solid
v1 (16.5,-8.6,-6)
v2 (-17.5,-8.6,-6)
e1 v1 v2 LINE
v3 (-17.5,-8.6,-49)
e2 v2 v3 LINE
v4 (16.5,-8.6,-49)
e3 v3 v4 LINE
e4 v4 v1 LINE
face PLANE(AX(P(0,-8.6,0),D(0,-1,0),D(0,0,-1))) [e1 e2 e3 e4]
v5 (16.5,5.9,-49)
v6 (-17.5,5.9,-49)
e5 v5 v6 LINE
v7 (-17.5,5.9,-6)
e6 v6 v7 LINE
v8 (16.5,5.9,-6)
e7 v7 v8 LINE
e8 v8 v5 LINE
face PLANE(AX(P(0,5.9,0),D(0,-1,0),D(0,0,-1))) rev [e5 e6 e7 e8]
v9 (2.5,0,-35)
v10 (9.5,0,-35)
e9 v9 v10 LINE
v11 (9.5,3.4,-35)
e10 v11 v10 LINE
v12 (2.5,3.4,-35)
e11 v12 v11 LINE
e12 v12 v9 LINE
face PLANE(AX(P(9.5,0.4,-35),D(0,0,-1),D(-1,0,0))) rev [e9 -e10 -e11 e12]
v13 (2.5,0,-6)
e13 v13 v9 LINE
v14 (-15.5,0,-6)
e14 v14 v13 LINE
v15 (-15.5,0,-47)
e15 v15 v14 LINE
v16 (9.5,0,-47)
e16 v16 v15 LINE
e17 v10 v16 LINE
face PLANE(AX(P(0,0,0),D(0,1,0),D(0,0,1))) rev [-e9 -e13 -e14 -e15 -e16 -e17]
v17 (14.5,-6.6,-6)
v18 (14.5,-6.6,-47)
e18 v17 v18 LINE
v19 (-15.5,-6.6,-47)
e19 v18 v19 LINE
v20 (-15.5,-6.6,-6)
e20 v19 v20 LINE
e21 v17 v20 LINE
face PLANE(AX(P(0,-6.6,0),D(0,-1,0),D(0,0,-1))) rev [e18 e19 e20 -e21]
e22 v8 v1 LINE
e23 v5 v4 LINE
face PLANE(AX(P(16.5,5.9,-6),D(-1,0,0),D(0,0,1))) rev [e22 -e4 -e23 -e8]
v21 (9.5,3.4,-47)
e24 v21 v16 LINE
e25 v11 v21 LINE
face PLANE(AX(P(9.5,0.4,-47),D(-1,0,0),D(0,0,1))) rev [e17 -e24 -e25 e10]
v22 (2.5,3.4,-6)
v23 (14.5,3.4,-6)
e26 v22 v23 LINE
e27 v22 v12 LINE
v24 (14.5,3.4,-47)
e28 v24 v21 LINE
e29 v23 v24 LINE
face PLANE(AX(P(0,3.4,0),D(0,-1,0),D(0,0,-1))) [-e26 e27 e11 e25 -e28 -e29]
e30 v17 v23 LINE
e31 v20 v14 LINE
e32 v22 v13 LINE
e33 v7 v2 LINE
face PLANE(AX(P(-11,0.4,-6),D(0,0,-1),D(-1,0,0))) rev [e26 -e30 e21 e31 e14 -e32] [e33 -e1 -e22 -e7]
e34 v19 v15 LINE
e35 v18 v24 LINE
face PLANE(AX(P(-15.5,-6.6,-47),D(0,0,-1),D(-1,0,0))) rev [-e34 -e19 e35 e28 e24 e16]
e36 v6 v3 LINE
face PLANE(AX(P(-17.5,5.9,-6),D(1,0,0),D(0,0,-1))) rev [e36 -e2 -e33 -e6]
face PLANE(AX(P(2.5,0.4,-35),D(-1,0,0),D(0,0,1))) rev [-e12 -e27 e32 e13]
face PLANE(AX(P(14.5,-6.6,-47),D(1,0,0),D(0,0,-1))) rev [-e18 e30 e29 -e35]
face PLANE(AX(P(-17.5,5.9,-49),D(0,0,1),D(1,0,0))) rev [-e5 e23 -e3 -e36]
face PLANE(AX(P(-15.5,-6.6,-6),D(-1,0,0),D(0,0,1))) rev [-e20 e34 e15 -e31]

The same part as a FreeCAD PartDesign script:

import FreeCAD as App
import Part
import Sketcher

V = App.Vector


def edges_at(feature, points):
    """Names of the edges that pass closest to the given points."""
    edges = feature.Shape.Edges
    near = lambda p: min(range(len(edges)), key=lambda i: edges[i].distToShape(Part.Vertex(*p))[0])
    return sorted({f"Edge{near(p) + 1}" for p in points})

doc = App.newDocument("Part")
body = doc.addObject("PartDesign::Body", "Body")

# Sketch on XZ plane
sketch1 = body.newObject("Sketcher::SketchObject", "Sketch")
sketch1.AttachmentSupport = (doc.getObject("XZ_Plane"), [""])
sketch1.MapMode = "FlatFace"
sketch1.addGeometry([
    Part.LineSegment(V(-11, 0, 0), V(11, 0, 0)),  # 0
    Part.LineSegment(V(11, 0, 0), V(11, -6, 0)),  # 1
    Part.LineSegment(V(11, -6, 0), V(2.5, -6, 0)),  # 2
    Part.LineSegment(V(2.5, -6, 0), V(2.5, -35, 0)),  # 3
    Part.LineSegment(V(2.5, -35, 0), V(9.5, -35, 0)),  # 4
    Part.LineSegment(V(9.5, -35, 0), V(9.5, -47, 0)),  # 5
    Part.LineSegment(V(9.5, -47, 0), V(-15.5, -47, 0)),  # 6
    Part.LineSegment(V(-15.5, -47, 0), V(-15.5, -6, 0)),  # 7
    Part.LineSegment(V(-15.5, -6, 0), V(-11, -6, 0)),  # 8
    Part.LineSegment(V(-11, -6, 0), V(-11, 0, 0)),  # 9
], False)
sketch1.addConstraint([
    Sketcher.Constraint("Coincident", 0, 2, 1, 1),
    Sketcher.Constraint("Coincident", 1, 2, 2, 1),
    Sketcher.Constraint("Coincident", 2, 2, 3, 1),
    Sketcher.Constraint("Coincident", 3, 2, 4, 1),
    Sketcher.Constraint("Coincident", 4, 2, 5, 1),
    Sketcher.Constraint("Coincident", 5, 2, 6, 1),
    Sketcher.Constraint("Coincident", 6, 2, 7, 1),
    Sketcher.Constraint("Coincident", 7, 2, 8, 1),
    Sketcher.Constraint("Coincident", 8, 2, 9, 1),
    Sketcher.Constraint("Coincident", 9, 2, 0, 1),
    Sketcher.Constraint("Horizontal", 0),
    Sketcher.Constraint("Vertical", 1),
    Sketcher.Constraint("Horizontal", 2),
    Sketcher.Constraint("Vertical", 3),
    Sketcher.Constraint("Horizontal", 4),
    Sketcher.Constraint("Vertical", 5),
    Sketcher.Constraint("Horizontal", 6),
    Sketcher.Constraint("Vertical", 7),
    Sketcher.Constraint("Horizontal", 8),
    Sketcher.Constraint("Vertical", 9),
    Sketcher.Constraint("Symmetric", 0, 2, 9, 2, -1, 1),
    Sketcher.Constraint("Horizontal", 2, 2, 7, 2),
    Sketcher.Constraint("DistanceX", 0, 1, 0, 2, 22.0),
    Sketcher.Constraint("DistanceX", 4, 1, 4, 2, 7.0),
    Sketcher.Constraint("DistanceX", 6, 2, 6, 1, 25.0),
    Sketcher.Constraint("DistanceY", 1, 2, 1, 1, 6.0),
    Sketcher.Constraint("DistanceY", 3, 2, 3, 1, 29.0),
    Sketcher.Constraint("DistanceY", 5, 2, 5, 1, 12.0),
    Sketcher.Constraint("DistanceX", 2, 2, 2, 1, 8.5),
])
pad1 = body.newObject("PartDesign::Pad", "Pad")
pad1.Profile = sketch1
pad1.Length = 0.4
pad1.Reversed = True

# Sketch on XZ plane
sketch2 = body.newObject("Sketcher::SketchObject", "Sketch001")
sketch2.AttachmentSupport = (doc.getObject("XZ_Plane"), [""])
sketch2.MapMode = "FlatFace"
sketch2.AttachmentOffset = App.Placement(V(0, 0, -0.4), App.Rotation())
sketch2.addGeometry([
    Part.LineSegment(V(-15.5, -6, 0), V(2.5, -6, 0)),  # 0
    Part.LineSegment(V(2.5, -6, 0), V(2.5, -35, 0)),  # 1
    Part.LineSegment(V(2.5, -35, 0), V(9.5, -35, 0)),  # 2
    Part.LineSegment(V(9.5, -35, 0), V(9.5, -47, 0)),  # 3
    Part.LineSegment(V(9.5, -47, 0), V(-15.5, -47, 0)),  # 4
    Part.LineSegment(V(-15.5, -47, 0), V(-15.5, -6, 0)),  # 5
], False)
sketch2.addConstraint([
    Sketcher.Constraint("Coincident", 0, 2, 1, 1),
    Sketcher.Constraint("Coincident", 1, 2, 2, 1),
    Sketcher.Constraint("Coincident", 2, 2, 3, 1),
    Sketcher.Constraint("Coincident", 3, 2, 4, 1),
    Sketcher.Constraint("Coincident", 4, 2, 5, 1),
    Sketcher.Constraint("Coincident", 5, 2, 0, 1),
    Sketcher.Constraint("Horizontal", 0),
    Sketcher.Constraint("Vertical", 1),
    Sketcher.Constraint("Horizontal", 2),
    Sketcher.Constraint("Vertical", 3),
    Sketcher.Constraint("Horizontal", 4),
    Sketcher.Constraint("Vertical", 5),
    Sketcher.Constraint("DistanceX", 0, 1, 0, 2, 18.0),
    Sketcher.Constraint("DistanceX", 2, 1, 2, 2, 7.0),
    Sketcher.Constraint("DistanceY", 1, 2, 1, 1, 29.0),
    Sketcher.Constraint("DistanceY", 3, 2, 3, 1, 12.0),
    Sketcher.Constraint("DistanceY", 0, 2, -1, 1, 6.0),
    Sketcher.Constraint("DistanceX", -1, 1, 0, 2, 2.5),
])
pad2 = body.newObject("PartDesign::Pad", "Pad001")
pad2.Profile = sketch2
pad2.Length = 3
pad2.Reversed = True
doc.recompute()

chamfer = body.newObject("PartDesign::Chamfer", "Chamfer")
chamfer.Base = (pad2, edges_at(pad2, [(11, 0.2, 0), (-11, 0.2, 0)]))
chamfer.Size = 1

# Sketch on XZ plane
sketch3 = body.newObject("Sketcher::SketchObject", "Sketch002")
sketch3.AttachmentSupport = (doc.getObject("XZ_Plane"), [""])
sketch3.MapMode = "FlatFace"
sketch3.AttachmentOffset = App.Placement(V(0, 0, -3.4), App.Rotation())
sketch3.addGeometry([
    Part.LineSegment(V(-17.5, -49, 0), V(-17.5, -6, 0)),
    Part.LineSegment(V(-17.5, -6, 0), V(16.5, -6, 0)),
    Part.LineSegment(V(16.5, -6, 0), V(16.5, -49, 0)),
    Part.LineSegment(V(16.5, -49, 0), V(-17.5, -49, 0)),
], False)
sketch3.addConstraint([
    Sketcher.Constraint("Coincident", 0, 2, 1, 1),
    Sketcher.Constraint("Coincident", 1, 2, 2, 1),
    Sketcher.Constraint("Coincident", 2, 2, 3, 1),
    Sketcher.Constraint("Coincident", 3, 2, 0, 1),
    Sketcher.Constraint("Vertical", 0),
    Sketcher.Constraint("Horizontal", 1),
    Sketcher.Constraint("Vertical", 2),
    Sketcher.Constraint("Horizontal", 3),
    Sketcher.Constraint("DistanceX", 1, 1, 1, 2, 34.0),
    Sketcher.Constraint("DistanceY", 0, 1, 0, 2, 43.0),
    Sketcher.Constraint("DistanceY", 0, 2, -1, 1, 6.0),
    Sketcher.Constraint("DistanceX", 0, 2, -1, 1, 17.5),
])
pad3 = body.newObject("PartDesign::Pad", "Pad002")
pad3.Profile = sketch3
pad3.Length = 2.5
pad3.Reversed = True

# Sketch on XZ plane
sketch4 = body.newObject("Sketcher::SketchObject", "Sketch003")
sketch4.AttachmentSupport = (doc.getObject("XZ_Plane"), [""])
sketch4.MapMode = "FlatFace"
sketch4.AttachmentOffset = App.Placement(V(0, 0, -3.4), App.Rotation())
sketch4.addGeometry([
    Part.LineSegment(V(-15.5, -6, 0), V(-17.5, -6, 0)),  # 0
    Part.LineSegment(V(-17.5, -6, 0), V(-17.5, -49, 0)),  # 1
    Part.LineSegment(V(-17.5, -49, 0), V(16.5, -49, 0)),  # 2
    Part.LineSegment(V(16.5, -49, 0), V(16.5, -6, 0)),  # 3
    Part.LineSegment(V(16.5, -6, 0), V(14.5, -6, 0)),  # 4
    Part.LineSegment(V(14.5, -6, 0), V(14.5, -47, 0)),  # 5
    Part.LineSegment(V(14.5, -47, 0), V(-15.5, -47, 0)),  # 6
    Part.LineSegment(V(-15.5, -47, 0), V(-15.5, -6, 0)),  # 7
], False)
sketch4.addConstraint([
    Sketcher.Constraint("Coincident", 0, 2, 1, 1),
    Sketcher.Constraint("Coincident", 1, 2, 2, 1),
    Sketcher.Constraint("Coincident", 2, 2, 3, 1),
    Sketcher.Constraint("Coincident", 3, 2, 4, 1),
    Sketcher.Constraint("Coincident", 4, 2, 5, 1),
    Sketcher.Constraint("Coincident", 5, 2, 6, 1),
    Sketcher.Constraint("Coincident", 6, 2, 7, 1),
    Sketcher.Constraint("Coincident", 7, 2, 0, 1),
    Sketcher.Constraint("Horizontal", 0),
    Sketcher.Constraint("Vertical", 1),
    Sketcher.Constraint("Horizontal", 2),
    Sketcher.Constraint("Vertical", 3),
    Sketcher.Constraint("Horizontal", 4),
    Sketcher.Constraint("Vertical", 5),
    Sketcher.Constraint("Horizontal", 6),
    Sketcher.Constraint("Vertical", 7),
    Sketcher.Constraint("Horizontal", 0, 2, 3, 2),
    Sketcher.Constraint("Equal", 0, 4),
    Sketcher.Constraint("DistanceX", 0, 2, 0, 1, 2.0),
    Sketcher.Constraint("DistanceX", 2, 1, 2, 2, 34.0),
    Sketcher.Constraint("DistanceY", 1, 2, 1, 1, 43.0),
    Sketcher.Constraint("DistanceY", 5, 2, 5, 1, 41.0),
    Sketcher.Constraint("DistanceY", 0, 2, -1, 1, 6.0),
    Sketcher.Constraint("DistanceX", 0, 2, -1, 1, 17.5),
])
pad4 = body.newObject("PartDesign::Pad", "Pad003")
pad4.Profile = sketch4
pad4.Length = 10

# Sketch on XZ plane
sketch5 = body.newObject("Sketcher::SketchObject", "Sketch004")
sketch5.AttachmentSupport = (doc.getObject("XZ_Plane"), [""])
sketch5.MapMode = "FlatFace"
sketch5.addGeometry([
    Part.LineSegment(V(-11, 0, 0), V(-11, -6, 0)),
    Part.LineSegment(V(-11, -6, 0), V(11, -6, 0)),
    Part.LineSegment(V(11, -6, 0), V(11, 0, 0)),
    Part.LineSegment(V(11, 0, 0), V(-11, 0, 0)),
], False)
sketch5.addConstraint([
    Sketcher.Constraint("Coincident", 0, 2, 1, 1),
    Sketcher.Constraint("Coincident", 1, 2, 2, 1),
    Sketcher.Constraint("Coincident", 2, 2, 3, 1),
    Sketcher.Constraint("Coincident", 3, 2, 0, 1),
    Sketcher.Constraint("Vertical", 0),
    Sketcher.Constraint("Horizontal", 1),
    Sketcher.Constraint("Vertical", 2),
    Sketcher.Constraint("Horizontal", 3),
    Sketcher.Constraint("Symmetric", 2, 2, 3, 2, -1, 1),
    Sketcher.Constraint("DistanceX", 1, 1, 1, 2, 22.0),
    Sketcher.Constraint("DistanceY", 0, 2, 0, 1, 6.0),
])
pocket1 = body.newObject("PartDesign::Pocket", "Pocket")
pocket1.Profile = sketch5
pocket1.Type = "UpToFirst"

# Sketch on XZ plane
sketch6 = body.newObject("Sketcher::SketchObject", "Sketch005")
sketch6.AttachmentSupport = (doc.getObject("XZ_Plane"), [""])
sketch6.MapMode = "FlatFace"
sketch6.AttachmentOffset = App.Placement(V(0, 0, 6.6), App.Rotation())
sketch6.addGeometry([
    Part.LineSegment(V(-17.5, -6, 0), V(-17.5, -49, 0)),
    Part.LineSegment(V(-17.5, -49, 0), V(16.5, -49, 0)),
    Part.LineSegment(V(16.5, -49, 0), V(16.5, -6, 0)),
    Part.LineSegment(V(16.5, -6, 0), V(-17.5, -6, 0)),
], False)
sketch6.addConstraint([
    Sketcher.Constraint("Coincident", 0, 2, 1, 1),
    Sketcher.Constraint("Coincident", 1, 2, 2, 1),
    Sketcher.Constraint("Coincident", 2, 2, 3, 1),
    Sketcher.Constraint("Coincident", 3, 2, 0, 1),
    Sketcher.Constraint("Vertical", 0),
    Sketcher.Constraint("Horizontal", 1),
    Sketcher.Constraint("Vertical", 2),
    Sketcher.Constraint("Horizontal", 3),
    Sketcher.Constraint("DistanceX", 1, 1, 1, 2, 34.0),
    Sketcher.Constraint("DistanceY", 0, 2, 0, 1, 43.0),
    Sketcher.Constraint("DistanceY", 0, 2, -1, 1, 49.0),
    Sketcher.Constraint("DistanceX", 0, 2, -1, 1, 17.5),
])
pad5 = body.newObject("PartDesign::Pad", "Pad004")
pad5.Profile = sketch6
pad5.Length = 2

doc.recompute()
